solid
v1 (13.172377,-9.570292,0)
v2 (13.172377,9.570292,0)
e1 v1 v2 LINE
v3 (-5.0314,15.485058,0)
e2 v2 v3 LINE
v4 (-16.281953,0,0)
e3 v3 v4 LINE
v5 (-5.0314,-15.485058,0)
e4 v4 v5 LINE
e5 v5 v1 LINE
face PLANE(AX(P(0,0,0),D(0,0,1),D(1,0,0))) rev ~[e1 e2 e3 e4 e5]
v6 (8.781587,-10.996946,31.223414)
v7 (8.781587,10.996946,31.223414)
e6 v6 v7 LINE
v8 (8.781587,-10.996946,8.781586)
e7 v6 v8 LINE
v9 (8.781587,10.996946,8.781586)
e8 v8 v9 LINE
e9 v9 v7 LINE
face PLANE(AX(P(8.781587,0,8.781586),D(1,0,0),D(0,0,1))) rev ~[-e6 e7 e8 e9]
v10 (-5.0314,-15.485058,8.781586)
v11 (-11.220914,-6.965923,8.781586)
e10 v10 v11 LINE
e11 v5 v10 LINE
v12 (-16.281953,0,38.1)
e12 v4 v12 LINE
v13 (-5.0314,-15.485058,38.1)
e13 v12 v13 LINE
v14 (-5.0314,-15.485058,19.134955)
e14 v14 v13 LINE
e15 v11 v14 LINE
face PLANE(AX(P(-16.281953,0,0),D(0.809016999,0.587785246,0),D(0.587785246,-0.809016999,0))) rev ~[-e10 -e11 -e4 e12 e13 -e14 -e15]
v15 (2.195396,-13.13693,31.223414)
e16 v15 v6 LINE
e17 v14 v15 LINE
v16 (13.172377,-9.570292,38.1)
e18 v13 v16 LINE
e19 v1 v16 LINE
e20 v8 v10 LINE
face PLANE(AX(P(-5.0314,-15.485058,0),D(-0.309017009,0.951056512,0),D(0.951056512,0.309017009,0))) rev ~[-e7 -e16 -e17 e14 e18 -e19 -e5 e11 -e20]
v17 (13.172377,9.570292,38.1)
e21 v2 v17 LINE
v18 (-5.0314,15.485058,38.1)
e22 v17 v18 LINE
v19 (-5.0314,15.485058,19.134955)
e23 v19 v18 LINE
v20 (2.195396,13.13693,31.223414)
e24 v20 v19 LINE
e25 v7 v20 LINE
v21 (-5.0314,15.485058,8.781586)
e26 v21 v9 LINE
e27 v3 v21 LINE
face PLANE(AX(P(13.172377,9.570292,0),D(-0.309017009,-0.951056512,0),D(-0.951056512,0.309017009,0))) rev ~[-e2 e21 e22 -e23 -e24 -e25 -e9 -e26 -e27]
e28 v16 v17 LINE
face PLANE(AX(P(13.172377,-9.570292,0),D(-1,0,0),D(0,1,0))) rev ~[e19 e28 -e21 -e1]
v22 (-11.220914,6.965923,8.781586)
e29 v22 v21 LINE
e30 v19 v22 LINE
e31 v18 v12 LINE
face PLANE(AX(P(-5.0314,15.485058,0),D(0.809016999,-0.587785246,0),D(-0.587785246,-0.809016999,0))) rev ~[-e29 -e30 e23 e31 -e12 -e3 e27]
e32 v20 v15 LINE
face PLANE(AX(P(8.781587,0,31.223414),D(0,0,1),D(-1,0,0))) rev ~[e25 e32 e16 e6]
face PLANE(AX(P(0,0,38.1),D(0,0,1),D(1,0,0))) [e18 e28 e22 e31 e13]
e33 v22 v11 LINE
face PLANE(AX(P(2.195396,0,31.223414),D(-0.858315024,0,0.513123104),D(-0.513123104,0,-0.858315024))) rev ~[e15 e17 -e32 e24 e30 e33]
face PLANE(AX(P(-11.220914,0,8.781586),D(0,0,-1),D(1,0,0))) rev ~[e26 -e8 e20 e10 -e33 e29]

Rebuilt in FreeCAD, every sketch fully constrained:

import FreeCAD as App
import Part
import Sketcher
from FreeCAD import Vector
Q = App.Units.Quantity

doc = App.newDocument("Part")
body = doc.addObject("PartDesign::Body", "Body")

# Sketch on XY plane
sketch1 = body.newObject("Sketcher::SketchObject", "Sketch")
sketch1.AttachmentSupport = (doc.getObject("XY_Plane"), [""])
sketch1.MapMode = "FlatFace"
sketch1.addGeometry([
    Part.LineSegment(Vector(13, -10, 0), Vector(13, 10, 0)),  # 0
    Part.LineSegment(Vector(13, 10, 0), Vector(-5, 15, 0)),  # 1
    Part.LineSegment(Vector(-5, 15, 0), Vector(-16, 0, 0)),  # 2
    Part.LineSegment(Vector(-16, 0, 0), Vector(-5, -15, 0)),  # 3
    Part.LineSegment(Vector(-5, -15, 0), Vector(13, -10, 0)),  # 4
], False)
sketch1.addConstraint([
    Sketcher.Constraint("Coincident", 0, 2, 1, 1),
    Sketcher.Constraint("Coincident", 1, 2, 2, 1),
    Sketcher.Constraint("Coincident", 2, 2, 3, 1),
    Sketcher.Constraint("Coincident", 3, 2, 4, 1),
    Sketcher.Constraint("Coincident", 4, 2, 0, 1),
    Sketcher.Constraint("Vertical", 0),
    Sketcher.Constraint("Symmetric", 1, 2, 3, 2, -1),
    Sketcher.Constraint("PointOnObject", 2, 2, -1),
    Sketcher.Constraint("Equal", 1, 2),
    Sketcher.Constraint("Equal", 3, 4),
    Sketcher.Constraint("Angle", 1, Q("161.999999 deg")),
    Sketcher.Constraint("Angle", 2, Q("-126 deg")),
    Sketcher.Constraint("DistanceX", 1, 2, -1, 1, Q("5.0314 mm")),
    Sketcher.Constraint("DistanceY", 0, 1, 0, 2, Q("19.140584 mm")),
])
pad1 = body.newObject("PartDesign::Pad", "Pad")
pad1.Profile = sketch1
pad1.Length = Q("1.5 in")

# Sketch on XZ plane
sketch2 = body.newObject("Sketcher::SketchObject", "Sketch001")
sketch2.AttachmentSupport = (doc.getObject("XZ_Plane"), [""])
sketch2.MapMode = "FlatFace"
sketch2.addGeometry([
    Part.LineSegment(Vector(9, 31, 0), Vector(2, 31, 0)),
    Part.LineSegment(Vector(2, 31, 0), Vector(-11, 9, 0)),
    Part.LineSegment(Vector(-11, 9, 0), Vector(9, 9, 0)),
    Part.LineSegment(Vector(9, 9, 0), Vector(9, 31, 0)),
], False)
sketch2.addConstraint([
    Sketcher.Constraint("Coincident", 0, 2, 1, 1),
    Sketcher.Constraint("Coincident", 1, 2, 2, 1),
    Sketcher.Constraint("Coincident", 2, 2, 3, 1),
    Sketcher.Constraint("Coincident", 3, 2, 0, 1),
    Sketcher.Constraint("Horizontal", 0),
    Sketcher.Constraint("Horizontal", 2),
    Sketcher.Constraint("Vertical", 3),
    Sketcher.Constraint("DistanceX", 2, 1, 2, 2, Q("0.7875 in")),
    Sketcher.Constraint("DistanceX", 0, 2, 0, 1, Q("6.586191 mm")),
    Sketcher.Constraint("DistanceY", 3, 1, 3, 2, Q("22.441828 mm")),
    Sketcher.Constraint("DistanceX", -1, 1, 0, 2, Q("2.195396 mm")),
    Sketcher.Constraint("DistanceY", -1, 1, 0, 2, Q("31.223414 mm")),
])
pocket1 = body.newObject("PartDesign::Pocket", "Pocket")
pocket1.Profile = sketch2
pocket1.Length = Q("2.18 in")
pocket1.Midplane = True

doc.recompute()
